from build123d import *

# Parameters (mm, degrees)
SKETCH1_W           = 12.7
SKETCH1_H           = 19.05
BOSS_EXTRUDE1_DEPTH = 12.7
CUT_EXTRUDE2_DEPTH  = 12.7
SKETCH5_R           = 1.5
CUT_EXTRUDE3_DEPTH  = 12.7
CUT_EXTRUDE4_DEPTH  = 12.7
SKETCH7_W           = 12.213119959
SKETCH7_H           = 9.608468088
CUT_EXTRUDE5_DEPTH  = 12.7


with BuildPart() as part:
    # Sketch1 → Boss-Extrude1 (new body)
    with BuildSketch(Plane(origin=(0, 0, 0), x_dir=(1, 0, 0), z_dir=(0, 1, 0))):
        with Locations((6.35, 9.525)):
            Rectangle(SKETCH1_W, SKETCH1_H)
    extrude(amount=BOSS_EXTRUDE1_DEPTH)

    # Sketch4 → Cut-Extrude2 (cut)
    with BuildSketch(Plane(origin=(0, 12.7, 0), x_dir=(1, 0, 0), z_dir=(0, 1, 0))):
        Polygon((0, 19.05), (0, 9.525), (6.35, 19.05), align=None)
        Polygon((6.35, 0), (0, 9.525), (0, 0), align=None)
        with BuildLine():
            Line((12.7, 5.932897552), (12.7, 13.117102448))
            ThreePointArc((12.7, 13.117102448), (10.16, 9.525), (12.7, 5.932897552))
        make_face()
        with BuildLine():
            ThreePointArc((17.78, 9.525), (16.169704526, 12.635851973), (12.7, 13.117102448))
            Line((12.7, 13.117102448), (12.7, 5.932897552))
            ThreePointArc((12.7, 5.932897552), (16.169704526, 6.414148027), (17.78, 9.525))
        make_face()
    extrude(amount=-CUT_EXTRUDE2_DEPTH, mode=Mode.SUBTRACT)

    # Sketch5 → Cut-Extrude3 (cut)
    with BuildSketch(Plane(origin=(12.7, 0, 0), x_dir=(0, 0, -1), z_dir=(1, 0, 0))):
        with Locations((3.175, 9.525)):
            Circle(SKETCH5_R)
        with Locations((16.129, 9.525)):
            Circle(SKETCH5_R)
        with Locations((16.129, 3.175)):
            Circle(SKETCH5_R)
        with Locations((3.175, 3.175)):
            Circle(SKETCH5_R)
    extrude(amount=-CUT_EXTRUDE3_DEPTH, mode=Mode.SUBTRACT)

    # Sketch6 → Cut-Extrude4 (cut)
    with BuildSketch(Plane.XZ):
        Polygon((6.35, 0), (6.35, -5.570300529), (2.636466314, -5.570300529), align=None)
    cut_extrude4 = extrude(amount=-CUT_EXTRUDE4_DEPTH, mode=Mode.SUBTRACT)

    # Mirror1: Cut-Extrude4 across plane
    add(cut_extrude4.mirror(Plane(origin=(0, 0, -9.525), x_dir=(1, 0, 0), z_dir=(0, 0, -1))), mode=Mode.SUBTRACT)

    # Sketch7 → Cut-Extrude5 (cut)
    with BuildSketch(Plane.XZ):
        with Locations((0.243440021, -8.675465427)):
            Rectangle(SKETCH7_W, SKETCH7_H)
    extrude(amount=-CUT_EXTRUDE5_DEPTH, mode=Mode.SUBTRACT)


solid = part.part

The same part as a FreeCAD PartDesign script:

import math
import FreeCAD as App
import Part
import Sketcher
Q = App.Units.Quantity

doc = App.newDocument("Part")
body = doc.addObject("PartDesign::Body", "Body")

sketch1 = body.newObject("Sketcher::SketchObject", "Sketch")
sketch1.AttachmentSupport = (doc.getObject("XZ_Plane"), [""])
sketch1.MapMode = "FlatFace"
sketch1.addGeometry(Part.LineSegment(App.Vector(0, -19, 0), App.Vector(0, 0, 0)), False)
sketch1.addGeometry(Part.LineSegment(App.Vector(0, 0, 0), App.Vector(13, 0, 0)), False)
sketch1.addGeometry(Part.LineSegment(App.Vector(13, 0, 0), App.Vector(13, -19, 0)), False)
sketch1.addGeometry(Part.LineSegment(App.Vector(13, -19, 0), App.Vector(0, -19, 0)), False)
sketch1.addConstraint(Sketcher.Constraint("Coincident", 0, 2, 1, 1))
sketch1.addConstraint(Sketcher.Constraint("Coincident", 1, 2, 2, 1))
sketch1.addConstraint(Sketcher.Constraint("Coincident", 2, 2, 3, 1))
sketch1.addConstraint(Sketcher.Constraint("Coincident", 3, 2, 0, 1))
sketch1.addConstraint(Sketcher.Constraint("Vertical", 0))
sketch1.addConstraint(Sketcher.Constraint("Horizontal", 1))
sketch1.addConstraint(Sketcher.Constraint("Vertical", 2))
sketch1.addConstraint(Sketcher.Constraint("Horizontal", 3))
sketch1.addConstraint(Sketcher.Constraint("Coincident", 0, 2, -1, 1))
sketch1.addConstraint(Sketcher.Constraint("DistanceX", 1, 1, 1, 2, Q("0.5 in")))
sketch1.addConstraint(Sketcher.Constraint("DistanceY", 0, 1, 0, 2, Q("0.75 in")))
pad1 = body.newObject("PartDesign::Pad", "Pad")
pad1.Profile = sketch1
pad1.Length = Q("0.5 in")
pad1.Reversed = True

sketch2 = body.newObject("Sketcher::SketchObject", "Sketch001")
sketch2.AttachmentSupport = (doc.getObject("XZ_Plane"), [""])
sketch2.MapMode = "FlatFace"
sketch2.AttachmentOffset = App.Placement(App.Vector(0, 0, -0.5 * 25.4), App.Rotation())
sketch2.addGeometry(Part.LineSegment(App.Vector(0, -19.1, 0), App.Vector(0, -9.5, 0)), False)
sketch2.addGeometry(Part.LineSegment(App.Vector(0, -9.5, 0), App.Vector(6.3, -19.1, 0)), False)
sketch2.addGeometry(Part.LineSegment(App.Vector(6.3, -19.1, 0), App.Vector(0, -19.1, 0)), False)
sketch2.addGeometry(Part.LineSegment(App.Vector(6.3, 0, 0), App.Vector(0, -9.5, 0)), False)
sketch2.addGeometry(Part.LineSegment(App.Vector(0, -9.5, 0), App.Vector(0, 0, 0)), False)
sketch2.addGeometry(Part.LineSegment(App.Vector(0, 0, 0), App.Vector(6.3, 0, 0)), False)
sketch2.addGeometry(Part.ArcOfCircle(Part.Circle(App.Vector(14, -9.5, 0), App.Vector(0, 0, 1), 3.8), math.radians(109), math.radians(251)), False)
sketch2.addGeometry(Part.ArcOfCircle(Part.Circle(App.Vector(14, -9.5, 0), App.Vector(0, 0, 1), 3.8), math.radians(0), math.radians(109)), False)
sketch2.addGeometry(Part.ArcOfCircle(Part.Circle(App.Vector(14, -9.5, 0), App.Vector(0, 0, 1), 3.8), math.radians(-109), math.radians(0)), False)
sketch2.addConstraint(Sketcher.Constraint("Coincident", 0, 2, 1, 1))
sketch2.addConstraint(Sketcher.Constraint("Coincident", 1, 2, 2, 1))
sketch2.addConstraint(Sketcher.Constraint("Coincident", 2, 2, 0, 1))
sketch2.addConstraint(Sketcher.Constraint("Coincident", 3, 2, 4, 1))
sketch2.addConstraint(Sketcher.Constraint("Coincident", 4, 2, 5, 1))
sketch2.addConstraint(Sketcher.Constraint("Coincident", 5, 2, 3, 1))
sketch2.addConstraint(Sketcher.Constraint("Tangent", 6, 1, 7, 2))
sketch2.addConstraint(Sketcher.Constraint("Tangent", 7, 1, 8, 2))
sketch2.addConstraint(Sketcher.Constraint("Tangent", 8, 1, 6, 2))
sketch2.addConstraint(Sketcher.Constraint("Vertical", 0))
sketch2.addConstraint(Sketcher.Constraint("Horizontal", 2))
sketch2.addConstraint(Sketcher.Constraint("Vertical", 4))
sketch2.addConstraint(Sketcher.Constraint("Horizontal", 5))
sketch2.addConstraint(Sketcher.Constraint("Coincident", 4, 2, -1, 1))
sketch2.addConstraint(Sketcher.Constraint("Coincident", 3, 2, 0, 2))
sketch2.addConstraint(Sketcher.Constraint("Horizontal", 8, 3, 0, 2))
sketch2.addConstraint(Sketcher.Constraint("Horizontal", 3, 2, 7, 1))
sketch2.addConstraint(Sketcher.Constraint("Vertical", 1, 2, 5, 2))
sketch2.addConstraint(Sketcher.Constraint("Vertical", 6, 1, 8, 1))
sketch2.addConstraint(Sketcher.Constraint("Equal", 0, 4))
sketch2.addConstraint(Sketcher.Constraint("Radius", 6, Q("0.15 in")))
sketch2.addConstraint(Sketcher.Constraint("DistanceX", 2, 2, 2, 1, Q("0.25 in")))
sketch2.addConstraint(Sketcher.Constraint("DistanceX", -1, 1, 6, 1, Q("0.5 in")))
sketch2.addConstraint(Sketcher.Constraint("DistanceX", -1, 1, 7, 1, Q("0.7 in")))
sketch2.addConstraint(Sketcher.Constraint("DistanceY", 0, 1, 0, 2, Q("0.375 in")))
pocket1 = body.newObject("PartDesign::Pocket", "Pocket")
pocket1.Profile = sketch2
pocket1.Length = Q("0.5 in")
pocket1.Reversed = True

sketch3 = body.newObject("Sketcher::SketchObject", "Sketch002")
sketch3.AttachmentSupport = (doc.getObject("YZ_Plane"), [""])
sketch3.MapMode = "FlatFace"
sketch3.AttachmentOffset = App.Placement(App.Vector(0, 0, 0.5 * 25.4), App.Rotation())
sketch3.addGeometry(Part.Circle(App.Vector(9.5, -3.2, 0), App.Vector(0, 0, 1), 1.5), False)
sketch3.addGeometry(Part.Circle(App.Vector(9.5, -16.1, 0), App.Vector(0, 0, 1), 1.5), False)
sketch3.addGeometry(Part.Circle(App.Vector(3.2, -16.1, 0), App.Vector(0, 0, 1), 1.5), False)
sketch3.addGeometry(Part.Circle(App.Vector(3.2, -3.2, 0), App.Vector(0, 0, 1), 1.5), False)
sketch3.addConstraint(Sketcher.Constraint("Equal", 0, 1))
sketch3.addConstraint(Sketcher.Constraint("Equal", 1, 2))
sketch3.addConstraint(Sketcher.Constraint("Equal", 2, 3))
sketch3.addConstraint(Sketcher.Constraint("Horizontal", 1, 3, 2, 3))
sketch3.addConstraint(Sketcher.Constraint("Horizontal", 0, 3, 3, 3))
sketch3.addConstraint(Sketcher.Constraint("Vertical", 0, 3, 1, 3))
sketch3.addConstraint(Sketcher.Constraint("Vertical", 2, 3, 3, 3))
sketch3.addConstraint(Sketcher.Constraint("Diameter", 0, Q("3 mm")))
sketch3.addConstraint(Sketcher.Constraint("DistanceY", 1, 3, 0, 3, Q("0.51 in")))
sketch3.addConstraint(Sketcher.Constraint("DistanceX", 2, 3, 1, 3, Q("0.25 in")))
sketch3.addConstraint(Sketcher.Constraint("DistanceX", -1, 1, 0, 3, Q("0.375 in")))
sketch3.addConstraint(Sketcher.Constraint("DistanceY", 0, 3, -1, 1, Q("0.125 in")))
pocket2 = body.newObject("PartDesign::Pocket", "Pocket001")
pocket2.Profile = sketch3
pocket2.Length = Q("0.5 in")

sketch4 = body.newObject("Sketcher::SketchObject", "Sketch003")
sketch4.AttachmentSupport = (doc.getObject("XZ_Plane"), [""])
sketch4.MapMode = "FlatFace"
sketch4.addGeometry(Part.LineSegment(App.Vector(6.3, -5.6, 0), App.Vector(6.3, 0, 0)), False)
sketch4.addGeometry(Part.LineSegment(App.Vector(6.3, 0, 0), App.Vector(2.6, -5.6, 0)), False)
sketch4.addGeometry(Part.LineSegment(App.Vector(2.6, -5.6, 0), App.Vector(6.3, -5.6, 0)), False)
sketch4.addConstraint(Sketcher.Constraint("Coincident", 0, 2, 1, 1))
sketch4.addConstraint(Sketcher.Constraint("Coincident", 1, 2, 2, 1))
sketch4.addConstraint(Sketcher.Constraint("Coincident", 2, 2, 0, 1))
sketch4.addConstraint(Sketcher.Constraint("Vertical", 0))
sketch4.addConstraint(Sketcher.Constraint("Horizontal", 2))
sketch4.addConstraint(Sketcher.Constraint("PointOnObject", 0, 2, -1))
sketch4.addConstraint(Sketcher.Constraint("DistanceX", -1, 1, 0, 2, Q("0.25 in")))
sketch4.addConstraint(Sketcher.Constraint("DistanceY", 0, 1, 0, 2, Q("5.570301 mm")))
sketch4.addConstraint(Sketcher.Constraint("Distance", 1, Q("6.694668 mm")))
pocket3 = body.newObject("PartDesign::Pocket", "Pocket002")
pocket3.Profile = sketch4
pocket3.Length = Q("0.5 in")
doc.recompute()

datumplane = body.newObject("PartDesign::Plane", "DatumPlane")
datumplane.AttachmentSupport = (doc.getObject("XY_Plane"), [""])
datumplane.MapMode = "FlatFace"
datumplane.AttachmentOffset = App.Placement(App.Vector(0, 0, -0.375 * 25.4), App.Rotation())
mirrored = body.newObject("PartDesign::Mirrored", "Mirrored")
mirrored.Originals = [pocket3]
mirrored.MirrorPlane = (datumplane, [""])
body.Tip = mirrored

sketch5 = body.newObject("Sketcher::SketchObject", "Sketch004")
sketch5.AttachmentSupport = (doc.getObject("XZ_Plane"), [""])
sketch5.MapMode = "FlatFace"
sketch5.addGeometry(Part.LineSegment(App.Vector(-6, -4, 0), App.Vector(-6, -13, 0)), False)
sketch5.addGeometry(Part.LineSegment(App.Vector(-6, -13, 0), App.Vector(6, -13, 0)), False)
sketch5.addGeometry(Part.LineSegment(App.Vector(6, -13, 0), App.Vector(6, -4, 0)), False)
sketch5.addGeometry(Part.LineSegment(App.Vector(6, -4, 0), App.Vector(-6, -4, 0)), False)
sketch5.addConstraint(Sketcher.Constraint("Coincident", 0, 2, 1, 1))
sketch5.addConstraint(Sketcher.Constraint("Coincident", 1, 2, 2, 1))
sketch5.addConstraint(Sketcher.Constraint("Coincident", 2, 2, 3, 1))
sketch5.addConstraint(Sketcher.Constraint("Coincident", 3, 2, 0, 1))
sketch5.addConstraint(Sketcher.Constraint("Vertical", 0))
sketch5.addConstraint(Sketcher.Constraint("Horizontal", 1))
sketch5.addConstraint(Sketcher.Constraint("Vertical", 2))
sketch5.addConstraint(Sketcher.Constraint("Horizontal", 3))
sketch5.addConstraint(Sketcher.Constraint("DistanceX", -1, 1, 1, 2, Q("0.25 in")))
sketch5.addConstraint(Sketcher.Constraint("DistanceX", 1, 1, 1, 2, Q("12.21312 mm")))
sketch5.addConstraint(Sketcher.Constraint("DistanceY", 0, 2, 0, 1, Q("9.608468 mm")))
sketch5.addConstraint(Sketcher.Constraint("DistanceY", 0, 2, -1, 1, Q("13.479699 mm")))
pocket4 = body.newObject("PartDesign::Pocket", "Pocket003")
pocket4.Profile = sketch5
pocket4.Length = Q("0.5 in")

doc.recompute()
